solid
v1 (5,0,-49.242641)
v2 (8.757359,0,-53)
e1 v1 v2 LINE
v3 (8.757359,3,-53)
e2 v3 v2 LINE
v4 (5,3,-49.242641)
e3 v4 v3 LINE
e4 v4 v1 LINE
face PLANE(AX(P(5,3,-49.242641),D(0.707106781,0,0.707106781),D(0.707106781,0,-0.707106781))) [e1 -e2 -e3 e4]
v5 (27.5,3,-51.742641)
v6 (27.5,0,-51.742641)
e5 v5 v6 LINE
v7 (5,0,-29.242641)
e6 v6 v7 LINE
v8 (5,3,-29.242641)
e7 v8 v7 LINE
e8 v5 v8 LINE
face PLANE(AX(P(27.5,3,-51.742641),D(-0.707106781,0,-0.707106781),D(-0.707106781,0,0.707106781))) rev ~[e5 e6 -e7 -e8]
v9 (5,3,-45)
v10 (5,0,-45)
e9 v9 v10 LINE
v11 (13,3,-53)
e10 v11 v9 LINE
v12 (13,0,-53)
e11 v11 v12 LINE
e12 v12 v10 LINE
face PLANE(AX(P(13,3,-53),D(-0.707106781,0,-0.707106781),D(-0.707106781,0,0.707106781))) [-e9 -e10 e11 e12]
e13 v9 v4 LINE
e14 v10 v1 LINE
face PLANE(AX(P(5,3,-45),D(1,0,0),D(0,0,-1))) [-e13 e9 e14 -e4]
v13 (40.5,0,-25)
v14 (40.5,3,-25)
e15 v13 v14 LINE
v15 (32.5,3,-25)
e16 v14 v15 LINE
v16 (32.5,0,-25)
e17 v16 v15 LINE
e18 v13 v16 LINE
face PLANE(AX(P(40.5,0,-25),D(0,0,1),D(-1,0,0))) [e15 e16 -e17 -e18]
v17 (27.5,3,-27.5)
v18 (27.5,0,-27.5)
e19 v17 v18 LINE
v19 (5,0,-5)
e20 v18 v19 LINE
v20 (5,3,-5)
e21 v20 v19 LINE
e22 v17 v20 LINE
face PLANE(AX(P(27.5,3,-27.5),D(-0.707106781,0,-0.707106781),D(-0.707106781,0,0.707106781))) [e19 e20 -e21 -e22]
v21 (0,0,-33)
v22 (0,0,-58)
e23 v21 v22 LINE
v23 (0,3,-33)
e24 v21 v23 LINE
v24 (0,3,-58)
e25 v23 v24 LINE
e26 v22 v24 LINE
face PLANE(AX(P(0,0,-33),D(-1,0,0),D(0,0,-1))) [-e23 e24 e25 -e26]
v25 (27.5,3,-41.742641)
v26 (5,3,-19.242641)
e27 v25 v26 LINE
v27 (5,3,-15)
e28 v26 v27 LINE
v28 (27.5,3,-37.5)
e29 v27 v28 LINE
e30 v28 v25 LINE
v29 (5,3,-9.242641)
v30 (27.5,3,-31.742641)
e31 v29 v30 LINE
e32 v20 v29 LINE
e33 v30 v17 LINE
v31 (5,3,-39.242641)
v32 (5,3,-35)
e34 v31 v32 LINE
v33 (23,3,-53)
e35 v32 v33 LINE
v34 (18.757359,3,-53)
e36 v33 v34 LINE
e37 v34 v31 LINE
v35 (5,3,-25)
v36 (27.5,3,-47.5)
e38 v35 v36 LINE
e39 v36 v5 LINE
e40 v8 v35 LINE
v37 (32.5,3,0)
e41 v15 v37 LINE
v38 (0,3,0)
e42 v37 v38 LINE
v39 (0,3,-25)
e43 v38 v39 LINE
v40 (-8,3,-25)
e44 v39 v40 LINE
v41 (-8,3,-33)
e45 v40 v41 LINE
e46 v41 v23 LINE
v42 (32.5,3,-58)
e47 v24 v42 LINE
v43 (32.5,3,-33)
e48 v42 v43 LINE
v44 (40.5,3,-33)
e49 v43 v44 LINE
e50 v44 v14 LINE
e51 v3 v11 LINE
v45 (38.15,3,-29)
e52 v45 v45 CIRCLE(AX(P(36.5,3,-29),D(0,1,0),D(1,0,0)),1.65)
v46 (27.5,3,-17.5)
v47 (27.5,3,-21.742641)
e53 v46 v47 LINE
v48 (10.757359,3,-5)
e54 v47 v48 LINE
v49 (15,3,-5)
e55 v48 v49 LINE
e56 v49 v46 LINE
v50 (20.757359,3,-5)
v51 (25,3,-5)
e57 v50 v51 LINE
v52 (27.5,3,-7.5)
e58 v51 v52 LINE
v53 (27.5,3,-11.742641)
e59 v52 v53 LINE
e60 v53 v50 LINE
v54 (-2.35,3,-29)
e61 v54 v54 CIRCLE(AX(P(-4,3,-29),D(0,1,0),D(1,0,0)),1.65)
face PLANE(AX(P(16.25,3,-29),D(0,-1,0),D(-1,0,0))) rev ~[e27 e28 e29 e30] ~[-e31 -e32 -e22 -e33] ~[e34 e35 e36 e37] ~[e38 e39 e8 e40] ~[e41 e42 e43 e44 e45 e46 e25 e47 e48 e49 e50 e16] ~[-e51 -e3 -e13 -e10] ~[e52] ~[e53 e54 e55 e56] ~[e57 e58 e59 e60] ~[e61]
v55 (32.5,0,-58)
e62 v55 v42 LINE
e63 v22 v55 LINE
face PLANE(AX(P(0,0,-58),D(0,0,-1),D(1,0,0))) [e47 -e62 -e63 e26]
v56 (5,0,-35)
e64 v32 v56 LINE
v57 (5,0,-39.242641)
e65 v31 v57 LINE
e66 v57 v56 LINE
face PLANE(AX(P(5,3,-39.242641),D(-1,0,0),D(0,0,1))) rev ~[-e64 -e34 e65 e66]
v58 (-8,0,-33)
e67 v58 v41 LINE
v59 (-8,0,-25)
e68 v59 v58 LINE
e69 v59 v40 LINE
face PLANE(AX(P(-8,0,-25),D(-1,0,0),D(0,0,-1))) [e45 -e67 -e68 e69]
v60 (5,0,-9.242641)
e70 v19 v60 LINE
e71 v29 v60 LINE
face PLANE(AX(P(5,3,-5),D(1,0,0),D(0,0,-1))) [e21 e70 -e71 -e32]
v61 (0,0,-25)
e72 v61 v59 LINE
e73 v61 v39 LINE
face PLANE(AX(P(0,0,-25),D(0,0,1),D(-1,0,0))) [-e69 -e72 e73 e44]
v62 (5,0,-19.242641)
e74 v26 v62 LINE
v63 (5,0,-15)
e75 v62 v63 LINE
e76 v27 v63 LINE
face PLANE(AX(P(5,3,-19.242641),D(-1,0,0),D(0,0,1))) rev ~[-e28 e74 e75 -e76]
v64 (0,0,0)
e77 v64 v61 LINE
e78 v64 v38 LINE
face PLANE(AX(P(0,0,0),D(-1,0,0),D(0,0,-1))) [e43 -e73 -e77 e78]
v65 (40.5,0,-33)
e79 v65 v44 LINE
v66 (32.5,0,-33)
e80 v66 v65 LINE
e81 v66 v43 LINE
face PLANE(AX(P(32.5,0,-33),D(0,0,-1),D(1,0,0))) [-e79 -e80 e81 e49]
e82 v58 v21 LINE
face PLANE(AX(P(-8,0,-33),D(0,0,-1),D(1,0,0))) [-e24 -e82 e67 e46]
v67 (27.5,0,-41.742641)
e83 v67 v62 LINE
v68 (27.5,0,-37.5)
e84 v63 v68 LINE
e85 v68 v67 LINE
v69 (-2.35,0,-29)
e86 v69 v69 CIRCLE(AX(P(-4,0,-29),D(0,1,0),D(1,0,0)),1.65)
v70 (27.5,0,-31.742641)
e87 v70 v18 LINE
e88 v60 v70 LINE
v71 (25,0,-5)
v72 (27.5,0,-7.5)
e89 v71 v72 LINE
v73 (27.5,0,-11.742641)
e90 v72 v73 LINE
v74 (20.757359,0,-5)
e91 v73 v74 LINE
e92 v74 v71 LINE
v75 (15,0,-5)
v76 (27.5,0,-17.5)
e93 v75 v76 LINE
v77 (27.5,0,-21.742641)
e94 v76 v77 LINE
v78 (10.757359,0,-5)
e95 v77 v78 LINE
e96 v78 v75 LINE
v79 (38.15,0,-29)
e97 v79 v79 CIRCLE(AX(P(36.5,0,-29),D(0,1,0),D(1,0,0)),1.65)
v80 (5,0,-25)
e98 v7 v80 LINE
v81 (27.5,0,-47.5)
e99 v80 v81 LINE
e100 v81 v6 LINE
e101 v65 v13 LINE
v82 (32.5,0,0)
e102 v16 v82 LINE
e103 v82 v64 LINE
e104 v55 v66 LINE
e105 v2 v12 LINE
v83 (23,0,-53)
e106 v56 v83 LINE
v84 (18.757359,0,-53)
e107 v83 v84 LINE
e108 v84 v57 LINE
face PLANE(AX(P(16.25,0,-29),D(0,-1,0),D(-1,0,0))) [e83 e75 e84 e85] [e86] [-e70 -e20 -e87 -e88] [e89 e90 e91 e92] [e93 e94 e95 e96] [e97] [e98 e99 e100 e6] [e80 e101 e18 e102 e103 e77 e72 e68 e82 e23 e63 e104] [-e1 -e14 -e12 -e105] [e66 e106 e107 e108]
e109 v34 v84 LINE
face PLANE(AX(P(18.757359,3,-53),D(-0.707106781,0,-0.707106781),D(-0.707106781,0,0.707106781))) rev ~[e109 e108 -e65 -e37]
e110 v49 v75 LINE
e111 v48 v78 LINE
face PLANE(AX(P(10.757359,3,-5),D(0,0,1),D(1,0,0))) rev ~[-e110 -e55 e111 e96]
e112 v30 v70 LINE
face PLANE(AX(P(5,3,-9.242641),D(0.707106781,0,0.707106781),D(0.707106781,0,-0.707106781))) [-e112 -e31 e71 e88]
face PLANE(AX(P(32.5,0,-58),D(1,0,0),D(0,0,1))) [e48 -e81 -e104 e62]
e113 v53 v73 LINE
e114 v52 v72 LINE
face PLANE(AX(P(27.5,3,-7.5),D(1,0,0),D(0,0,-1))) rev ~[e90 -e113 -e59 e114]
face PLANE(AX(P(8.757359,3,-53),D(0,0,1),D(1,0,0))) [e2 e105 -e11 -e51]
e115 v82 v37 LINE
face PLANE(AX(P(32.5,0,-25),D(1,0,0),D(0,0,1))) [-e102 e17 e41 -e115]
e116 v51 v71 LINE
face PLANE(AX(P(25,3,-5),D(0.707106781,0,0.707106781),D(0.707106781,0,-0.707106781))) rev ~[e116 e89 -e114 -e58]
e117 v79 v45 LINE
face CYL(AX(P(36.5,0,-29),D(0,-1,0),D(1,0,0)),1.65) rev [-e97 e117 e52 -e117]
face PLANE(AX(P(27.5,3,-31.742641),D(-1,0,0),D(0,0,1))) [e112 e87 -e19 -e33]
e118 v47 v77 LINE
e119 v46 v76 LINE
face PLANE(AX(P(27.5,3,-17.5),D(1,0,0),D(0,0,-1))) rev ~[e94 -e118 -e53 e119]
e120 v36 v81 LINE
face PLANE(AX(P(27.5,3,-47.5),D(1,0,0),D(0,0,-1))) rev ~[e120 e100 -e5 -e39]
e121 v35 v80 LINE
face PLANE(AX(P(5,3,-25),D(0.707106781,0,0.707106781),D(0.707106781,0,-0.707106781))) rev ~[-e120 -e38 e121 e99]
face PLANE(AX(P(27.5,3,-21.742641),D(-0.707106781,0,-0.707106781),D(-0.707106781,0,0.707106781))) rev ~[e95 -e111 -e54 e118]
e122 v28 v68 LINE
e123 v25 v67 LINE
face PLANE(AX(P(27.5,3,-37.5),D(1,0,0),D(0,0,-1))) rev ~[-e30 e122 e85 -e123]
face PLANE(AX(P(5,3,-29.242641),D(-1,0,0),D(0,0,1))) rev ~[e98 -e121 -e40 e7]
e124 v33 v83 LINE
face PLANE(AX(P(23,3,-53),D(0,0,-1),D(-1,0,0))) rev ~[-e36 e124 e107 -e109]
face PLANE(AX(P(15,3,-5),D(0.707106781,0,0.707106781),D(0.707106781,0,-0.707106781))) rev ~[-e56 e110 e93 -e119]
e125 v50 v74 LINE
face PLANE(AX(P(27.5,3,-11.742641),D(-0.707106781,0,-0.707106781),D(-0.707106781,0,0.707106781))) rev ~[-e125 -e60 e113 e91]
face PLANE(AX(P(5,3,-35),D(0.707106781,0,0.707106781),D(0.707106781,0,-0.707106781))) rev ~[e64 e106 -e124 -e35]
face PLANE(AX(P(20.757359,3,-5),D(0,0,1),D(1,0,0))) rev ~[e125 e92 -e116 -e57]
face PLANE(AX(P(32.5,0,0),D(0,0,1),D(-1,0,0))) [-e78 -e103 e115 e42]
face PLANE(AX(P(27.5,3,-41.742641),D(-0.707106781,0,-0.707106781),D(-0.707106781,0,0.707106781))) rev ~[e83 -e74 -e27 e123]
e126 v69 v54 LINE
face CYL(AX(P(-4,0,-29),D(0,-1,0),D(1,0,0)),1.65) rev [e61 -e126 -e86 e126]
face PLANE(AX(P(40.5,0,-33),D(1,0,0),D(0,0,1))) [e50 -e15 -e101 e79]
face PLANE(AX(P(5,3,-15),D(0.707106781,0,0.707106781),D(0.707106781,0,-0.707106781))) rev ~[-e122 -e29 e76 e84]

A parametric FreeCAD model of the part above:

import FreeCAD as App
import Part
import Sketcher
from FreeCAD import Vector
Q = App.Units.Quantity

doc = App.newDocument("Part")
params = doc.addObject("Spreadsheet::Sheet", "Params")
for row, (alias, value) in enumerate([
    ("sketch1_diameter", "3.3 mm"),
    ("sketch1_width", "8 mm"),
    ("sketch1_height", "25 mm"),
    ("sketch1_width2", "32.5 mm"),
    ("pad1_length", "3 mm"),
    ("pocket1_length", "3 mm"),
], start=1):
    params.set(f"A{row}", alias)
    params.set(f"B{row}", "=" + value)
    params.setAlias(f"B{row}", alias)

body = doc.addObject("PartDesign::Body", "Body")

# Sketch on XZ plane
sketch1 = doc.addObject("Sketcher::SketchObject", "Sketch")
body.addObject(sketch1)
sketch1.AttachmentSupport = (doc.XZ_Plane, [""])
sketch1.MapMode = "FlatFace"
sketch1.addGeometry([
    Part.LineSegment(Vector(-8, -25, 0), Vector(0, -25, 0)),  # 0
    Part.LineSegment(Vector(0, -25, 0), Vector(0, 0, 0)),  # 1
    Part.LineSegment(Vector(0, 0, 0), Vector(32.5, 0, 0)),  # 2
    Part.LineSegment(Vector(32.5, 0, 0), Vector(32.5, -25, 0)),  # 3
    Part.LineSegment(Vector(32.5, -25, 0), Vector(40.5, -25, 0)),  # 4
    Part.LineSegment(Vector(40.5, -25, 0), Vector(40.5, -33, 0)),  # 5
    Part.LineSegment(Vector(40.5, -33, 0), Vector(32.5, -33, 0)),  # 6
    Part.LineSegment(Vector(32.5, -33, 0), Vector(32.5, -58, 0)),  # 7
    Part.LineSegment(Vector(32.5, -58, 0), Vector(0, -58, 0)),  # 8
    Part.LineSegment(Vector(0, -58, 0), Vector(0, -33, 0)),  # 9
    Part.LineSegment(Vector(0, -33, 0), Vector(-8, -33, 0)),  # 10
    Part.LineSegment(Vector(-8, -33, 0), Vector(-8, -25, 0)),  # 11
    Part.Circle(Vector(36.5, -29, 0), Vector(0, 0, 1), 1.6),  # 12
    Part.Circle(Vector(-4, -29, 0), Vector(0, 0, 1), 1.6),  # 13
], False)
sketch1.addConstraint([
    Sketcher.Constraint("Coincident", 0, 2, 1, 1),
    Sketcher.Constraint("Coincident", 1, 2, 2, 1),
    Sketcher.Constraint("Coincident", 2, 2, 3, 1),
    Sketcher.Constraint("Coincident", 3, 2, 4, 1),
    Sketcher.Constraint("Coincident", 4, 2, 5, 1),
    Sketcher.Constraint("Coincident", 5, 2, 6, 1),
    Sketcher.Constraint("Coincident", 6, 2, 7, 1),
    Sketcher.Constraint("Coincident", 7, 2, 8, 1),
    Sketcher.Constraint("Coincident", 8, 2, 9, 1),
    Sketcher.Constraint("Coincident", 9, 2, 10, 1),
    Sketcher.Constraint("Coincident", 10, 2, 11, 1),
    Sketcher.Constraint("Coincident", 11, 2, 0, 1),
    Sketcher.Constraint("Horizontal", 0),
    Sketcher.Constraint("Vertical", 1),
    Sketcher.Constraint("Horizontal", 2),
    Sketcher.Constraint("Vertical", 3),
    Sketcher.Constraint("Horizontal", 4),
    Sketcher.Constraint("Vertical", 5),
    Sketcher.Constraint("Horizontal", 6),
    Sketcher.Constraint("Vertical", 7),
    Sketcher.Constraint("Horizontal", 8),
    Sketcher.Constraint("Vertical", 9),
    Sketcher.Constraint("Horizontal", 10),
    Sketcher.Constraint("Vertical", 11),
    Sketcher.Constraint("Coincident", 1, 2, -1, 1),
    Sketcher.Constraint("Equal", 12, 13),
    Sketcher.Constraint("PointOnObject", 8, 2, -2),
    Sketcher.Constraint("Horizontal", 12, 3, 13, 3),
    Sketcher.Constraint("Horizontal", 0, 2, 3, 2),
    Sketcher.Constraint("Horizontal", 6, 2, 9, 2),
    Sketcher.Constraint("Vertical", 3, 2, 6, 2),
    Sketcher.Constraint("Equal", 0, 4),
    Sketcher.Constraint("Equal", 10, 5),
    Sketcher.Constraint("Equal", 3, 7),
    Sketcher.Constraint("Diameter", 12, Q("3.3 mm")),
    Sketcher.Constraint("DistanceX", 0, 1, 0, 2, Q("8 mm")),
    Sketcher.Constraint("DistanceY", 1, 1, 1, 2, Q("25 mm")),
    Sketcher.Constraint("DistanceX", 2, 1, 2, 2, Q("32.5 mm")),
    Sketcher.Constraint("DistanceY", 12, 3, -1, 1, Q("29 mm")),
    Sketcher.Constraint("DistanceX", 13, 3, -1, 1, Q("4 mm")),
    Sketcher.Constraint("DistanceX", 2, 2, 12, 3, Q("4 mm")),
])
sketch1.setExpression("Constraints[34]", "Params.sketch1_diameter")
sketch1.setExpression("Constraints[35]", "Params.sketch1_width")
sketch1.setExpression("Constraints[36]", "Params.sketch1_height")
sketch1.setExpression("Constraints[37]", "Params.sketch1_width2")
pad1 = doc.addObject("PartDesign::Pad", "Pad")
body.addObject(pad1)
pad1.Profile = sketch1
pad1.setExpression("Length", "Params.pad1_length")
pad1.Reversed = True

# Sketch on XZ plane
sketch2 = doc.addObject("Sketcher::SketchObject", "Sketch001")
body.addObject(sketch2)
sketch2.AttachmentSupport = (doc.XZ_Plane, [""])
sketch2.MapMode = "FlatFace"
sketch2.AttachmentOffset = App.Placement(Vector(0, 0, -3), App.Rotation())
sketch2.addGeometry([
    Part.LineSegment(Vector(10.8, -5, 0), Vector(15, -5, 0)),  # 0
    Part.LineSegment(Vector(15, -5, 0), Vector(27.5, -17.5, 0)),  # 1
    Part.LineSegment(Vector(27.5, -17.5, 0), Vector(27.5, -21.7, 0)),  # 2
    Part.LineSegment(Vector(27.5, -21.7, 0), Vector(10.8, -5, 0)),  # 3
    Part.LineSegment(Vector(5, -9.2, 0), Vector(5, -5, 0)),  # 4
    Part.LineSegment(Vector(5, -5, 0), Vector(27.5, -27.5, 0)),  # 5
    Part.LineSegment(Vector(27.5, -27.5, 0), Vector(27.5, -31.7, 0)),  # 6
    Part.LineSegment(Vector(27.5, -31.7, 0), Vector(5, -9.2, 0)),  # 7
    Part.LineSegment(Vector(13, -53, 0), Vector(8.8, -53, 0)),  # 8
    Part.LineSegment(Vector(8.8, -53, 0), Vector(5, -49.2, 0)),  # 9
    Part.LineSegment(Vector(5, -49.2, 0), Vector(5, -45, 0)),  # 10
    Part.LineSegment(Vector(5, -45, 0), Vector(13, -53, 0)),  # 11
    Part.LineSegment(Vector(5, -15, 0), Vector(27.5, -37.5, 0)),  # 12
    Part.LineSegment(Vector(27.5, -37.5, 0), Vector(27.5, -41.7, 0)),  # 13
    Part.LineSegment(Vector(27.5, -41.7, 0), Vector(5, -19.2, 0)),  # 14
    Part.LineSegment(Vector(5, -19.2, 0), Vector(5, -15, 0)),  # 15
    Part.LineSegment(Vector(5, -25, 0), Vector(27.5, -47.5, 0)),  # 16
    Part.LineSegment(Vector(27.5, -47.5, 0), Vector(27.5, -51.7, 0)),  # 17
    Part.LineSegment(Vector(27.5, -51.7, 0), Vector(5, -29.2, 0)),  # 18
    Part.LineSegment(Vector(5, -29.2, 0), Vector(5, -25, 0)),  # 19
    Part.LineSegment(Vector(5, -35, 0), Vector(23, -53, 0)),  # 20
    Part.LineSegment(Vector(23, -53, 0), Vector(18.8, -53, 0)),  # 21
    Part.LineSegment(Vector(18.8, -53, 0), Vector(5, -39.2, 0)),  # 22
    Part.LineSegment(Vector(5, -39.2, 0), Vector(5, -35, 0)),  # 23
    Part.LineSegment(Vector(25, -5, 0), Vector(27.5, -7.5, 0)),  # 24
    Part.LineSegment(Vector(27.5, -7.5, 0), Vector(27.5, -11.7, 0)),  # 25
    Part.LineSegment(Vector(27.5, -11.7, 0), Vector(20.8, -5, 0)),  # 26
    Part.LineSegment(Vector(20.8, -5, 0), Vector(25, -5, 0)),  # 27
], False)
sketch2.addConstraint([
    Sketcher.Constraint("Coincident", 0, 2, 1, 1),
    Sketcher.Constraint("Coincident", 1, 2, 2, 1),
    Sketcher.Constraint("Coincident", 2, 2, 3, 1),
    Sketcher.Constraint("Coincident", 3, 2, 0, 1),
    Sketcher.Constraint("Coincident", 4, 2, 5, 1),
    Sketcher.Constraint("Coincident", 5, 2, 6, 1),
    Sketcher.Constraint("Coincident", 6, 2, 7, 1),
    Sketcher.Constraint("Coincident", 7, 2, 4, 1),
    Sketcher.Constraint("Coincident", 8, 2, 9, 1),
    Sketcher.Constraint("Coincident", 9, 2, 10, 1),
    Sketcher.Constraint("Coincident", 10, 2, 11, 1),
    Sketcher.Constraint("Coincident", 11, 2, 8, 1),
    Sketcher.Constraint("Coincident", 12, 2, 13, 1),
    Sketcher.Constraint("Coincident", 13, 2, 14, 1),
    Sketcher.Constraint("Coincident", 14, 2, 15, 1),
    Sketcher.Constraint("Coincident", 15, 2, 12, 1),
    Sketcher.Constraint("Coincident", 16, 2, 17, 1),
    Sketcher.Constraint("Coincident", 17, 2, 18, 1),
    Sketcher.Constraint("Coincident", 18, 2, 19, 1),
    Sketcher.Constraint("Coincident", 19, 2, 16, 1),
    Sketcher.Constraint("Coincident", 20, 2, 21, 1),
    Sketcher.Constraint("Coincident", 21, 2, 22, 1),
    Sketcher.Constraint("Coincident", 22, 2, 23, 1),
    Sketcher.Constraint("Coincident", 23, 2, 20, 1),
    Sketcher.Constraint("Coincident", 24, 2, 25, 1),
    Sketcher.Constraint("Coincident", 25, 2, 26, 1),
    Sketcher.Constraint("Coincident", 26, 2, 27, 1),
    Sketcher.Constraint("Coincident", 27, 2, 24, 1),
    Sketcher.Constraint("Horizontal", 0),
    Sketcher.Constraint("Vertical", 2),
    Sketcher.Constraint("Vertical", 4),
    Sketcher.Constraint("Vertical", 6),
    Sketcher.Constraint("Horizontal", 8),
    Sketcher.Constraint("Vertical", 10),
    Sketcher.Constraint("Vertical", 13),
    Sketcher.Constraint("Vertical", 15),
    Sketcher.Constraint("Vertical", 17),
    Sketcher.Constraint("Vertical", 19),
    Sketcher.Constraint("Horizontal", 21),
    Sketcher.Constraint("Vertical", 23),
    Sketcher.Constraint("Vertical", 25),
    Sketcher.Constraint("Horizontal", 27),
    Sketcher.Constraint("Parallel", 1, 3),
    Sketcher.Constraint("Parallel", 3, 5),
    Sketcher.Constraint("Parallel", 5, 7),
    Sketcher.Constraint("Parallel", 7, 9),
    Sketcher.Constraint("Parallel", 9, 11),
    Sketcher.Constraint("Parallel", 11, 12),
    Sketcher.Constraint("Parallel", 12, 14),
    Sketcher.Constraint("Parallel", 14, 16),
    Sketcher.Constraint("Parallel", 16, 18),
    Sketcher.Constraint("Parallel", 18, 20),
    Sketcher.Constraint("Parallel", 20, 22),
    Sketcher.Constraint("Parallel", 22, 24),
    Sketcher.Constraint("Parallel", 24, 26),
    Sketcher.Constraint("Horizontal", 3, 2, 4, 2),
    Sketcher.Constraint("Horizontal", 11, 2, 20, 2),
    Sketcher.Constraint("Horizontal", 4, 2, 26, 2),
    Sketcher.Constraint("Vertical", 2, 2, 5, 2),
    Sketcher.Constraint("Vertical", 7, 2, 9, 2),
    Sketcher.Constraint("Vertical", 6, 2, 12, 2),
    Sketcher.Constraint("Vertical", 10, 2, 14, 2),
    Sketcher.Constraint("Vertical", 13, 2, 16, 2),
    Sketcher.Constraint("Vertical", 15, 2, 18, 2),
    Sketcher.Constraint("Vertical", 19, 2, 22, 2),
    Sketcher.Constraint("Vertical", 17, 2, 24, 2),
    Sketcher.Constraint("Equal", 0, 8),
    Sketcher.Constraint("Equal", 8, 21),
    Sketcher.Constraint("Equal", 21, 27),
    Sketcher.Constraint("Equal", 27, 2),
    Sketcher.Constraint("Equal", 2, 4),
    Sketcher.Constraint("Equal", 10, 13),
    Sketcher.Constraint("Equal", 15, 17),
    Sketcher.Constraint("DistanceX", -1, 1, 0, 2, Q("15 mm")),
    Sketcher.Constraint("DistanceY", 0, 2, -1, 1, Q("5 mm")),
    Sketcher.Constraint("DistanceX", -1, 1, 4, 2, Q("5 mm")),
    Sketcher.Constraint("DistanceY", 8, 2, -1, 1, Q("53 mm")),
    Sketcher.Constraint("DistanceY", 10, 2, -1, 1, Q("45 mm")),
    Sketcher.Constraint("DistanceY", 15, 2, -1, 1, Q("15 mm")),
    Sketcher.Constraint("DistanceY", 19, 2, -1, 1, Q("25 mm")),
    Sketcher.Constraint("DistanceX", -1, 1, 20, 2, Q("23 mm")),
    Sketcher.Constraint("DistanceX", -1, 1, 27, 2, Q("25 mm")),
    Sketcher.Constraint("DistanceX", -1, 1, 1, 2, Q("27.5 mm")),
    Sketcher.Constraint("DistanceX", 0, 1, 0, 2, Q("4.242641 mm")),
])
pocket1 = doc.addObject("PartDesign::Pocket", "Pocket")
body.addObject(pocket1)
pocket1.Profile = sketch2
pocket1.setExpression("Length", "Params.pocket1_length")
pocket1.Reversed = True

doc.recompute()
